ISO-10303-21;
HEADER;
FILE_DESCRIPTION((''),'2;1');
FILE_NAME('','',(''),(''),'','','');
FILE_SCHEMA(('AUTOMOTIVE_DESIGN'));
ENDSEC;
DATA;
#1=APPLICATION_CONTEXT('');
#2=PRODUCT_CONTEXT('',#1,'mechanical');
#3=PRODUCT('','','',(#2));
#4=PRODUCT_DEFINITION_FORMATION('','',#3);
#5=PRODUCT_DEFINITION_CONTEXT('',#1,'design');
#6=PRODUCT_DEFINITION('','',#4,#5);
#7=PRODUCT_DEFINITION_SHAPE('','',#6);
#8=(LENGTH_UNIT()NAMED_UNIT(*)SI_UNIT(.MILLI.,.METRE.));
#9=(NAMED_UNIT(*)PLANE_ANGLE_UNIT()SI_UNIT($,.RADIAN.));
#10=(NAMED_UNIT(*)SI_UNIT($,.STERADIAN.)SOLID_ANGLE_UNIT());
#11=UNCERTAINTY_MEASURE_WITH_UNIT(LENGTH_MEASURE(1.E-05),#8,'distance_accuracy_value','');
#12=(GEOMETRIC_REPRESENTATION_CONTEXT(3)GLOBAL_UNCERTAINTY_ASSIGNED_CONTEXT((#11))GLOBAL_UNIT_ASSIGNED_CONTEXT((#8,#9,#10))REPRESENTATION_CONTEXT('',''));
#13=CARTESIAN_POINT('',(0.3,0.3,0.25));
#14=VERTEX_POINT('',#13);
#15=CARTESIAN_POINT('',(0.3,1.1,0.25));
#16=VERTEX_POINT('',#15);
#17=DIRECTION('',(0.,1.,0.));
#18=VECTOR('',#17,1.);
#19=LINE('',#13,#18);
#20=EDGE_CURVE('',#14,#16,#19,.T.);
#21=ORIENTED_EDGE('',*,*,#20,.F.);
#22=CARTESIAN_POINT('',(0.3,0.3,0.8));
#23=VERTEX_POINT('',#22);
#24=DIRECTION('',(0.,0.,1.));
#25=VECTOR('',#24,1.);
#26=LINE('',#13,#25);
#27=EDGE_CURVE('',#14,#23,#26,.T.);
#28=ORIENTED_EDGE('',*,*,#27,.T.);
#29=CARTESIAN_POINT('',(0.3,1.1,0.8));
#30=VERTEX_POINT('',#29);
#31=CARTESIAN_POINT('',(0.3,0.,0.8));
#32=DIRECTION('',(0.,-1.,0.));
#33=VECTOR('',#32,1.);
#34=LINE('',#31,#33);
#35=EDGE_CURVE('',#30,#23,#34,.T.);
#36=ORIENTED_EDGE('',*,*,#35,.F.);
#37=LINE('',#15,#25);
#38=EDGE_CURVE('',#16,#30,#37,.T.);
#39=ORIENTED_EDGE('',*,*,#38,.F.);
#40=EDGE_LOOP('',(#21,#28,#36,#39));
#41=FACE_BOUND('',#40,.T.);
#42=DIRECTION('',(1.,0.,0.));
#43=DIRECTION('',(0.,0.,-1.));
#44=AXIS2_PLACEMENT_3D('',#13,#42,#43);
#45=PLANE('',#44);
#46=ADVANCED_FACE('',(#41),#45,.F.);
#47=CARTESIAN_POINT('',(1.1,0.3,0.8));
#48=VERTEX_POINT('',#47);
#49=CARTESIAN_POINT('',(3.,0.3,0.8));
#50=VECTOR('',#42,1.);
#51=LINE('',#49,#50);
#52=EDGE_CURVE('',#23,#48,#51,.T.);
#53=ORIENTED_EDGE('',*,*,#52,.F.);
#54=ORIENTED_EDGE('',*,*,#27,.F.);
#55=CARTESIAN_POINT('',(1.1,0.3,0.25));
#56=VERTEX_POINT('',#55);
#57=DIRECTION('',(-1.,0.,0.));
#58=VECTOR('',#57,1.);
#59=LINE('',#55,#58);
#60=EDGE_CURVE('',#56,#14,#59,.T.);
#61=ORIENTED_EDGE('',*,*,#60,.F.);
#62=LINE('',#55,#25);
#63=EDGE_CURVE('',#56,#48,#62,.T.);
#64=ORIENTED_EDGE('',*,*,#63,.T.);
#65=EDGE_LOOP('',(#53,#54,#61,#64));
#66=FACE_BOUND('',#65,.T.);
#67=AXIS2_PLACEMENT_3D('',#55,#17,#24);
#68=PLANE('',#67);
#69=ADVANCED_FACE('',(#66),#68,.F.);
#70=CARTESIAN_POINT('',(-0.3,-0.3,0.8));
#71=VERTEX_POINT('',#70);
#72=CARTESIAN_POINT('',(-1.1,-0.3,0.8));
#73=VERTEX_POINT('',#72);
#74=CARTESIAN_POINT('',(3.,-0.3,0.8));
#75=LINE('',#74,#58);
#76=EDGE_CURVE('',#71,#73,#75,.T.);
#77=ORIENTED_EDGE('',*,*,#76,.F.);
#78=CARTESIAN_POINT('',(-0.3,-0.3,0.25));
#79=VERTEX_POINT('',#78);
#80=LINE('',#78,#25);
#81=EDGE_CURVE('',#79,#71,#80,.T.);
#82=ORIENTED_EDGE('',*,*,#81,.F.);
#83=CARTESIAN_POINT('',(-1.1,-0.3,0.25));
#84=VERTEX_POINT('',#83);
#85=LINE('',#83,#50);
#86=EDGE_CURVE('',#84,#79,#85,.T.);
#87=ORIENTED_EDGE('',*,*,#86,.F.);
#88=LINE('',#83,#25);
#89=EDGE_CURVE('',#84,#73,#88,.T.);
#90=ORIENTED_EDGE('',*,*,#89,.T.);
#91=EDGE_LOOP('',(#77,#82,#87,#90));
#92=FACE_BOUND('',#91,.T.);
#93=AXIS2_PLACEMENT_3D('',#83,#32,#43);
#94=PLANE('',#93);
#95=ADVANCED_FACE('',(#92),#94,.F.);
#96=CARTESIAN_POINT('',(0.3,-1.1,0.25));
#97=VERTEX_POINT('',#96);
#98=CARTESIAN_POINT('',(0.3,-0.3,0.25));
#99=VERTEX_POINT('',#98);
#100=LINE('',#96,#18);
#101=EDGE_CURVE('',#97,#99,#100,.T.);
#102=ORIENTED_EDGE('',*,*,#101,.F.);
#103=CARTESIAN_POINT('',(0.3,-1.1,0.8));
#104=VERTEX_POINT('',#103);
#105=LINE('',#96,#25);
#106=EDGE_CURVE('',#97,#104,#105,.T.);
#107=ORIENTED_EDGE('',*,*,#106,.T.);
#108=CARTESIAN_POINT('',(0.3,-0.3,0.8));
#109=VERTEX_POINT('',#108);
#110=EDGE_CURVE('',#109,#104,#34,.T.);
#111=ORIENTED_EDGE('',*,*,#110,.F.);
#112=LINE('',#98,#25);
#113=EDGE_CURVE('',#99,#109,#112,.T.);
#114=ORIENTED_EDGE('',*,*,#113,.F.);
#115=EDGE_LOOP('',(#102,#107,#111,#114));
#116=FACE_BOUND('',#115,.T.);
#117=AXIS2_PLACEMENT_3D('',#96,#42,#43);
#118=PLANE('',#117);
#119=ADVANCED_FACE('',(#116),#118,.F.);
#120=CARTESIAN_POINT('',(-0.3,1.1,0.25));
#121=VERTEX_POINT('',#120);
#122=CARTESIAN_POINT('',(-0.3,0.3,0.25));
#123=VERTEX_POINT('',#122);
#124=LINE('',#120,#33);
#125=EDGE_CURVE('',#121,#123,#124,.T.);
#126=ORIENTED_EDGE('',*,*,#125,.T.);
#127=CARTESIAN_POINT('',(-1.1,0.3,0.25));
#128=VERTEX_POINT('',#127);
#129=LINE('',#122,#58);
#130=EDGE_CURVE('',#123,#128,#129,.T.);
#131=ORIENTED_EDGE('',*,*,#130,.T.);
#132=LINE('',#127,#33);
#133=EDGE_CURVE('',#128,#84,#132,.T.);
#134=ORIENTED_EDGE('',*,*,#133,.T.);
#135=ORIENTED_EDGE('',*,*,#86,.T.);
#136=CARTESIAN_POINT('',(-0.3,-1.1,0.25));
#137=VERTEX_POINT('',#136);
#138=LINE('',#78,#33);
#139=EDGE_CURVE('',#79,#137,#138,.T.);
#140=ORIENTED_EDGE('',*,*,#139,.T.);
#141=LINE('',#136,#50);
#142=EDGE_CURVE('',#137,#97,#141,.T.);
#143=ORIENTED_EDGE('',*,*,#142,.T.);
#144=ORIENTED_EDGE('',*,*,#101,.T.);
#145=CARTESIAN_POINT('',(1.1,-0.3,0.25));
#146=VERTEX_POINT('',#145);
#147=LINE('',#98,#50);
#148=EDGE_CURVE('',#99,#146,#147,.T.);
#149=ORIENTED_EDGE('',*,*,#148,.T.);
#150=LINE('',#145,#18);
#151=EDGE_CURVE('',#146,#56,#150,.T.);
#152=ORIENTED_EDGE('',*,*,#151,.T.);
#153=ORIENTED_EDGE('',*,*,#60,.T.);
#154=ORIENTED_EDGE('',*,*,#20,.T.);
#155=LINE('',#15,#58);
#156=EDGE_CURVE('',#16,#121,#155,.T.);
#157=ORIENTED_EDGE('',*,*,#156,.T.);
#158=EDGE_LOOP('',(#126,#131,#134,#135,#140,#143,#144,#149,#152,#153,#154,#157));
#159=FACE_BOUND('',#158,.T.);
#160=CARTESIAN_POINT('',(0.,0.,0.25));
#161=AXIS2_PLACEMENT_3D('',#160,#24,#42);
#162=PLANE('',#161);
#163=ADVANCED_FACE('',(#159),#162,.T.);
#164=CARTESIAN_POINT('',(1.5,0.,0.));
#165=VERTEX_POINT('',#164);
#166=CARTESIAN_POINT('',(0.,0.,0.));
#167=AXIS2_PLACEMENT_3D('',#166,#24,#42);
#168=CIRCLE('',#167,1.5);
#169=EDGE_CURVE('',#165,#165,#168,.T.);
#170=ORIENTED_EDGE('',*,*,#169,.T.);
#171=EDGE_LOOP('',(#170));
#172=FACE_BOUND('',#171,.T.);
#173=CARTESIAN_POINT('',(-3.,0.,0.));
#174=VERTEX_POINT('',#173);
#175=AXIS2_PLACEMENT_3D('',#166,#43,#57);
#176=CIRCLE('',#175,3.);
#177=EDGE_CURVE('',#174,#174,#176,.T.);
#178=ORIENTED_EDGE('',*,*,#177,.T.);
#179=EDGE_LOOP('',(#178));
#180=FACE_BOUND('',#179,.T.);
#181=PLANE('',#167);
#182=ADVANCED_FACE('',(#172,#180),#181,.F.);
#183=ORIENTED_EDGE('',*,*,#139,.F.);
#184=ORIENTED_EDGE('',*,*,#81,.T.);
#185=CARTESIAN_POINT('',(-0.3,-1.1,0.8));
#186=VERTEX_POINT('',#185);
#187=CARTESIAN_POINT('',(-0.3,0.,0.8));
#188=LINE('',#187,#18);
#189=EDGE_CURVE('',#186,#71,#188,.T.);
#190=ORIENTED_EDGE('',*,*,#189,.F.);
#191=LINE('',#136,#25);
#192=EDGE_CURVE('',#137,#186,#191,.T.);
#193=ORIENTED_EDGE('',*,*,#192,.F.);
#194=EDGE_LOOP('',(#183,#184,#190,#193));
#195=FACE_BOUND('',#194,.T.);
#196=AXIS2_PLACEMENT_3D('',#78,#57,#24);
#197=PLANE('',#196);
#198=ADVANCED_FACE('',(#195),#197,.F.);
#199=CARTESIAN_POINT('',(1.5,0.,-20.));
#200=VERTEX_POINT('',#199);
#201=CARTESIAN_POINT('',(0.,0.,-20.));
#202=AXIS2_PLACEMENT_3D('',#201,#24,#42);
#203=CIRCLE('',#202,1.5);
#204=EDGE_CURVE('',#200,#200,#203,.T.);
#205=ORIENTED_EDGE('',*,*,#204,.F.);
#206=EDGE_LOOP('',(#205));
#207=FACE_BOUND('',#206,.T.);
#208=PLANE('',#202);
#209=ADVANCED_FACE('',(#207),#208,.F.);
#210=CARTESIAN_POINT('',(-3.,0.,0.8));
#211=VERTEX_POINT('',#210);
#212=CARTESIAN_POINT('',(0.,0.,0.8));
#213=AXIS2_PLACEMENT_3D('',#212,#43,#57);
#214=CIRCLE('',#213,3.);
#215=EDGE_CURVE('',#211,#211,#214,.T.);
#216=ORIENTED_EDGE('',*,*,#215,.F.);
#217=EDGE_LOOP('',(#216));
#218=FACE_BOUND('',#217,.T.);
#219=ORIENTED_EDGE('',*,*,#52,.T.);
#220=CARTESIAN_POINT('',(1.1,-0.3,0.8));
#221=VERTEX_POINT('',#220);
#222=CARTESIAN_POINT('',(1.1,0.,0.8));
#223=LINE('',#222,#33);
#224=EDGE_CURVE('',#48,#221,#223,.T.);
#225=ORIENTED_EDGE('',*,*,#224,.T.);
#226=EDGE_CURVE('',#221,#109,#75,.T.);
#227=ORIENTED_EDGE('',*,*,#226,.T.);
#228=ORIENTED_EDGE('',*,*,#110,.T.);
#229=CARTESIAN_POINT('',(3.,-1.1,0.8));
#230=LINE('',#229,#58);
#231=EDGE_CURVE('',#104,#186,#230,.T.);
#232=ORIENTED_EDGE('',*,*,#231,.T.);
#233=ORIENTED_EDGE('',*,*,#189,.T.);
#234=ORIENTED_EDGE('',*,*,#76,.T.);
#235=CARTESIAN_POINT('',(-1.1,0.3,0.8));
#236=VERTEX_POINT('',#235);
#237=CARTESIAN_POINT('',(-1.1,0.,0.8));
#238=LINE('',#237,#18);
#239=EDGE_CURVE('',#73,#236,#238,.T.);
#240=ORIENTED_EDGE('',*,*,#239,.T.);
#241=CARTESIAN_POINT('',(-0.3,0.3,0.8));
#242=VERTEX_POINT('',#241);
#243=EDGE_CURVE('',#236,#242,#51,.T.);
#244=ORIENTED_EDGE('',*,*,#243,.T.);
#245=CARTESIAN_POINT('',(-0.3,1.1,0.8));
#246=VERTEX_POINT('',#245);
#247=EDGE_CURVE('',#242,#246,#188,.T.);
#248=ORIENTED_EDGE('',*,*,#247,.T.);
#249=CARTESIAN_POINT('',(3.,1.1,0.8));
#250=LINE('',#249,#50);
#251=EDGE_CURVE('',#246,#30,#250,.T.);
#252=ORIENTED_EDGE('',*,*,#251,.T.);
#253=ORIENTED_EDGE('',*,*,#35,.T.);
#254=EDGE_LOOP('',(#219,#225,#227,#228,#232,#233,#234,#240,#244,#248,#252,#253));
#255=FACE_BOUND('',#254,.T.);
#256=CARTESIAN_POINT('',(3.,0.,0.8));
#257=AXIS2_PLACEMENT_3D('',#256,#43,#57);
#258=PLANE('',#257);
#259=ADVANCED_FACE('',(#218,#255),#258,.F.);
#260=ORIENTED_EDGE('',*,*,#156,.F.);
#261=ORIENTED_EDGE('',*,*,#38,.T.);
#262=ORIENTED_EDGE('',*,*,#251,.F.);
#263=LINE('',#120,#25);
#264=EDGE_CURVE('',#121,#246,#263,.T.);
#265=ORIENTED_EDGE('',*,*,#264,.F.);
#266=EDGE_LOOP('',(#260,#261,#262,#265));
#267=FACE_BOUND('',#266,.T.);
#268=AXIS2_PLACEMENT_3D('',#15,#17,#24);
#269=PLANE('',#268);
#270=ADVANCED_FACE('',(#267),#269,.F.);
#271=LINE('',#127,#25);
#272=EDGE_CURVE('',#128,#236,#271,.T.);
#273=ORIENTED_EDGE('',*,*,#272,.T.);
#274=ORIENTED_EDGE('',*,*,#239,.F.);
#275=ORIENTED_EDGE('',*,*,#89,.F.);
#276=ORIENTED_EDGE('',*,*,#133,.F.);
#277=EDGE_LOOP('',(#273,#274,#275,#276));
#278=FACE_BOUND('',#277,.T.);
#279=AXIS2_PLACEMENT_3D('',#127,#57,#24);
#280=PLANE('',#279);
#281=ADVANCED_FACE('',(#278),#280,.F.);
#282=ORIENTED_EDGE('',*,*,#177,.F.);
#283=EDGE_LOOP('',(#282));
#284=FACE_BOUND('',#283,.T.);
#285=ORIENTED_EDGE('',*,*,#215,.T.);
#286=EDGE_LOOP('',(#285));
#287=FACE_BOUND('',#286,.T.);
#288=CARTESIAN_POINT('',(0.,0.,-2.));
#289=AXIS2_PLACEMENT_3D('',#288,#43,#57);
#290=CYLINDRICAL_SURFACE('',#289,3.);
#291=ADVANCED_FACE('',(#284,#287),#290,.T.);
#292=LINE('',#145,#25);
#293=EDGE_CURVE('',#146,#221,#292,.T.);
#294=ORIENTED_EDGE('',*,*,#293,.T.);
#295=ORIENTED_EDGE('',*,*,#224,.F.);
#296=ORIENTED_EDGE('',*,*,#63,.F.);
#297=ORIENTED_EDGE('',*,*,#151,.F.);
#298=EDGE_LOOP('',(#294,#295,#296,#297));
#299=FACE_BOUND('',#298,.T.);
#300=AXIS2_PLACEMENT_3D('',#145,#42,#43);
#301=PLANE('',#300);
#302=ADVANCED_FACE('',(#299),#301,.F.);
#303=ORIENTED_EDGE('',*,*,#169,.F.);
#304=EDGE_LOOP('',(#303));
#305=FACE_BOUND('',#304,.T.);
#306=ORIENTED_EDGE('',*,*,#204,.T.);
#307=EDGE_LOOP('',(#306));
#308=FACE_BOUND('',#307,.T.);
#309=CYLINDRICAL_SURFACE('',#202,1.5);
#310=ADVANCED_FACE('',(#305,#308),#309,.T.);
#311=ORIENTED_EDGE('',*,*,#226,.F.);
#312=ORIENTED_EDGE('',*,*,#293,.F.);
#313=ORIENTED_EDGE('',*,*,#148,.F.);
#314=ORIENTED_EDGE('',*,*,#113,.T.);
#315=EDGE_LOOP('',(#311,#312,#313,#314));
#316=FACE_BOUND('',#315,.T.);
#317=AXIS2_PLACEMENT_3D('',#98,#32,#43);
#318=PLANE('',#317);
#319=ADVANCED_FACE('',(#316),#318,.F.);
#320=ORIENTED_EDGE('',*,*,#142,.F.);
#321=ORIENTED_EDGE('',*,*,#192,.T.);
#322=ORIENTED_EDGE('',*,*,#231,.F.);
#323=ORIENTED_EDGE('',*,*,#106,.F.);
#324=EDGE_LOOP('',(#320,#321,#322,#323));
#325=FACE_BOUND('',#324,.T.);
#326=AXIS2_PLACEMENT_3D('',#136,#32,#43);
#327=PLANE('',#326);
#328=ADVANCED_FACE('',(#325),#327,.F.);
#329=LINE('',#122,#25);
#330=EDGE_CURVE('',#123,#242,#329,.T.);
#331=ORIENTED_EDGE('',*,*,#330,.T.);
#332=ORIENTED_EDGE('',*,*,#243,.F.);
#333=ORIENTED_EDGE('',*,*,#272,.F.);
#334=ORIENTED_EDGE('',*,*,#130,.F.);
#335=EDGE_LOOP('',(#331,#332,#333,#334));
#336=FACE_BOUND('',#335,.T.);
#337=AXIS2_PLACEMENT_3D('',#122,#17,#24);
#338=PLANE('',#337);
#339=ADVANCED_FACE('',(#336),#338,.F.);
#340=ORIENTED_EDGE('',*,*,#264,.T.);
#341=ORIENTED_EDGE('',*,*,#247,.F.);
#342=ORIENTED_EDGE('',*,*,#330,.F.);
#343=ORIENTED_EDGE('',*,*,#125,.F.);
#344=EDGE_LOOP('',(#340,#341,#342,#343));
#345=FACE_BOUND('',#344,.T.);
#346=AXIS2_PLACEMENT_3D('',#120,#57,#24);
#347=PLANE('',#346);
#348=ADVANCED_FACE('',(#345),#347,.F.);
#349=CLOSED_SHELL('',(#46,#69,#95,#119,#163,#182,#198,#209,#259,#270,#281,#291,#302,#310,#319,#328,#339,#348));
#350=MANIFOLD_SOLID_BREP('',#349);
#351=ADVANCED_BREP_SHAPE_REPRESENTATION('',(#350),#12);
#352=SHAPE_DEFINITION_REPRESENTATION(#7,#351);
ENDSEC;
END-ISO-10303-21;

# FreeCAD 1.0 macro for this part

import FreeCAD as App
import Part
import Sketcher

V = App.Vector
Q = App.Units.Quantity


def add_polygon(sketch, points):
    """Adds a closed chain of lines whose ends are joined by coincident constraints."""
    first, n = sketch.GeometryCount, len(points)
    for a, b in zip(points, points[1:] + points[:1]):
        sketch.addGeometry(Part.LineSegment(App.Vector(*a, 0), App.Vector(*b, 0)), False)
    for i in range(n):
        sketch.addConstraint(Sketcher.Constraint("Coincident", first + i, 2, first + (i + 1) % n, 1))

doc = App.newDocument("Part")
body = doc.addObject("PartDesign::Body", "Body")

# Sketch on XY plane
sketch1 = body.newObject("Sketcher::SketchObject", "Sketch")
sketch1.AttachmentSupport = (doc.getObject("XY_Plane"), [""])
sketch1.MapMode = "FlatFace"
sketch1.addGeometry(Part.Circle(V(0, 0, 0), V(0, 0, 1), 1.5), False)
sketch1.addConstraint([
    Sketcher.Constraint("Coincident", 0, 3, -1, 1),
    Sketcher.Constraint("Diameter", 0, Q("3 mm")),
])
pad1 = body.newObject("PartDesign::Pad", "Pad")
pad1.Profile = sketch1
pad1.Length = 20
pad1.Reversed = True

# Sketch on XZ plane
sketch2 = body.newObject("Sketcher::SketchObject", "Sketch001")
sketch2.AttachmentSupport = (doc.getObject("XZ_Plane"), [""])
sketch2.MapMode = "FlatFace"
add_polygon(sketch2, [(0, 0), (0, 0.8), (3, 0.8), (3, 0)])  # lines 0-3
sketch2.addConstraint([
    Sketcher.Constraint("Vertical", 0),
    Sketcher.Constraint("Horizontal", 1),
    Sketcher.Constraint("Vertical", 2),
    Sketcher.Constraint("Horizontal", 3),
    Sketcher.Constraint("Coincident", 3, 2, -1, 1),
    Sketcher.Constraint("DistanceX", 1, 1, 1, 2, Q("3 mm")),
    Sketcher.Constraint("DistanceY", 0, 1, 0, 2, Q("0.8 mm")),
])
revolution = body.newObject("PartDesign::Revolution", "Revolution")
revolution.Profile = sketch2
revolution.ReferenceAxis = (sketch2, ["V_Axis"])
revolution.Angle = 360

# Sketch on XY plane
sketch3 = body.newObject("Sketcher::SketchObject", "Sketch002")
sketch3.AttachmentSupport = (doc.getObject("XY_Plane"), [""])
sketch3.MapMode = "FlatFace"
sketch3.AttachmentOffset = App.Placement(V(0, 0, 0.81), App.Rotation())
add_polygon(sketch3, [(-0.3, -1.1), (0.3, -1.1), (0.3, -0.3), (1.1, -0.3), (1.1, 0.3), (0.3, 0.3), (0.3, 1.1), (-0.3, 1.1), (-0.3, 0.3), (-1.1, 0.3), (-1.1, -0.3), (-0.3, -0.3)])  # lines 0-11
sketch3.addConstraint([
    Sketcher.Constraint("Horizontal", 0),
    Sketcher.Constraint("Vertical", 1),
    Sketcher.Constraint("Horizontal", 2),
    Sketcher.Constraint("Vertical", 3),
    Sketcher.Constraint("Horizontal", 4),
    Sketcher.Constraint("Vertical", 5),
    Sketcher.Constraint("Horizontal", 6),
    Sketcher.Constraint("Vertical", 7),
    Sketcher.Constraint("Horizontal", 8),
    Sketcher.Constraint("Vertical", 9),
    Sketcher.Constraint("Horizontal", 10),
    Sketcher.Constraint("Vertical", 11),
    Sketcher.Constraint("Symmetric", 0, 2, 6, 2, -1, 1),
    Sketcher.Constraint("Symmetric", 2, 2, 8, 2, -1, 1),
    Sketcher.Constraint("Symmetric", 4, 2, 10, 2, -1, 1),
    Sketcher.Constraint("Symmetric", 4, 2, 7, 2, -2),
    Sketcher.Constraint("Equal", 10, 1),
    Sketcher.Constraint("Equal", 6, 3),
    Sketcher.Constraint("DistanceX", 0, 1, 0, 2, Q("0.6 mm")),
    Sketcher.Constraint("DistanceX", 2, 1, 2, 2, Q("0.8 mm")),
])
pocket1 = body.newObject("PartDesign::Pocket", "Pocket")
pocket1.Profile = sketch3
pocket1.Length = 0.56

doc.recompute()
